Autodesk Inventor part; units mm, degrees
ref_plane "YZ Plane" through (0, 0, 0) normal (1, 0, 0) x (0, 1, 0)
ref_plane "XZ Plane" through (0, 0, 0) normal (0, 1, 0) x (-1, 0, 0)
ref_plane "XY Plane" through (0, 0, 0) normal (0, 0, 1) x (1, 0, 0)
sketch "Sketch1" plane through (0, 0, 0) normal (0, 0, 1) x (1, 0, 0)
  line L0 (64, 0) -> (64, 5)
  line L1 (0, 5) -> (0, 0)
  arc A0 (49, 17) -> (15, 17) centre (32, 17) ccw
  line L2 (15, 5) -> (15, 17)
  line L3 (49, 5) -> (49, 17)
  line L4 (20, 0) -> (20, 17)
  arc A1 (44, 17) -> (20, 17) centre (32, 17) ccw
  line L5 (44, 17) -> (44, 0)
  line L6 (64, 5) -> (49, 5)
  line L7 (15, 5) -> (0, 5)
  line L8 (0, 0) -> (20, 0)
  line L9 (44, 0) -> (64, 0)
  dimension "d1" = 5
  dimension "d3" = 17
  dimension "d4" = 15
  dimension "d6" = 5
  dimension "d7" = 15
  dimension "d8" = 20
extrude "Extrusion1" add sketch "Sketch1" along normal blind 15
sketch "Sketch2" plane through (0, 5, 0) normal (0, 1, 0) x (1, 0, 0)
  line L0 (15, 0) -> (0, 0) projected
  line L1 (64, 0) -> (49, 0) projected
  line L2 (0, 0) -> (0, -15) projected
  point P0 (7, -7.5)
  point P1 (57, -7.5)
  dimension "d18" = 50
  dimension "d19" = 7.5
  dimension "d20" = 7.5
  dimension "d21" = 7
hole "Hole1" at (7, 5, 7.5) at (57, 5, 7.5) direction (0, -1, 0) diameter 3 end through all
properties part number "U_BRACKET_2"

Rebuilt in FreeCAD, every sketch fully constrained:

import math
import FreeCAD as App
import Part
import Sketcher
from FreeCAD import Vector
Q = App.Units.Quantity

doc = App.newDocument("Part")
body = doc.addObject("PartDesign::Body", "Body")

sketch1 = body.newObject("Sketcher::SketchObject", "Sketch")
sketch1.AttachmentSupport = (doc.getObject("XY_Plane"), [""])
sketch1.MapMode = "FlatFace"
sketch1.addGeometry(Part.LineSegment(Vector(44, 0, 0), Vector(64, 0, 0)), False)
sketch1.addGeometry(Part.LineSegment(Vector(64, 0, 0), Vector(64, 5, 0)), False)
sketch1.addGeometry(Part.LineSegment(Vector(64, 5, 0), Vector(49, 5, 0)), False)
sketch1.addGeometry(Part.LineSegment(Vector(49, 5, 0), Vector(49, 17, 0)), False)
sketch1.addGeometry(Part.ArcOfCircle(Part.Circle(Vector(32, 17, 0), Vector(0, 0, 1), 17), math.radians(0), math.radians(180)), False)
sketch1.addGeometry(Part.LineSegment(Vector(15, 17, 0), Vector(15, 5, 0)), False)
sketch1.addGeometry(Part.LineSegment(Vector(15, 5, 0), Vector(0, 5, 0)), False)
sketch1.addGeometry(Part.LineSegment(Vector(0, 5, 0), Vector(0, 0, 0)), False)
sketch1.addGeometry(Part.LineSegment(Vector(0, 0, 0), Vector(20, 0, 0)), False)
sketch1.addGeometry(Part.LineSegment(Vector(20, 0, 0), Vector(20, 17, 0)), False)
sketch1.addGeometry(Part.ArcOfCircle(Part.Circle(Vector(32, 17, 0), Vector(0, 0, 1), 12), math.radians(0), math.radians(180)), False)
sketch1.addGeometry(Part.LineSegment(Vector(44, 17, 0), Vector(44, 0, 0)), False)
sketch1.addConstraint(Sketcher.Constraint("Coincident", 0, 2, 1, 1))
sketch1.addConstraint(Sketcher.Constraint("Coincident", 1, 2, 2, 1))
sketch1.addConstraint(Sketcher.Constraint("Coincident", 2, 2, 3, 1))
sketch1.addConstraint(Sketcher.Constraint("Tangent", 3, 2, 4, 1))
sketch1.addConstraint(Sketcher.Constraint("Tangent", 4, 2, 5, 1))
sketch1.addConstraint(Sketcher.Constraint("Coincident", 5, 2, 6, 1))
sketch1.addConstraint(Sketcher.Constraint("Coincident", 6, 2, 7, 1))
sketch1.addConstraint(Sketcher.Constraint("Coincident", 7, 2, 8, 1))
sketch1.addConstraint(Sketcher.Constraint("Coincident", 8, 2, 9, 1))
sketch1.addConstraint(Sketcher.Constraint("Tangent", 9, 2, 10, 2))
sketch1.addConstraint(Sketcher.Constraint("Tangent", 10, 1, 11, 1))
sketch1.addConstraint(Sketcher.Constraint("Coincident", 11, 2, 0, 1))
sketch1.addConstraint(Sketcher.Constraint("Horizontal", 0))
sketch1.addConstraint(Sketcher.Constraint("Vertical", 1))
sketch1.addConstraint(Sketcher.Constraint("Horizontal", 2))
sketch1.addConstraint(Sketcher.Constraint("Vertical", 3))
sketch1.addConstraint(Sketcher.Constraint("Vertical", 5))
sketch1.addConstraint(Sketcher.Constraint("Horizontal", 6))
sketch1.addConstraint(Sketcher.Constraint("Vertical", 7))
sketch1.addConstraint(Sketcher.Constraint("Horizontal", 8))
sketch1.addConstraint(Sketcher.Constraint("Vertical", 9))
sketch1.addConstraint(Sketcher.Constraint("Vertical", 11))
sketch1.addConstraint(Sketcher.Constraint("Coincident", 7, 2, -1, 1))
sketch1.addConstraint(Sketcher.Constraint("Coincident", 10, 3, 4, 3))
sketch1.addConstraint(Sketcher.Constraint("PointOnObject", 0, 2, -1))
sketch1.addConstraint(Sketcher.Constraint("Horizontal", 2, 2, 5, 2))
sketch1.addConstraint(Sketcher.Constraint("Equal", 2, 6))
sketch1.addConstraint(Sketcher.Constraint("Radius", 4, Q("17 mm")))
sketch1.addConstraint(Sketcher.Constraint("DistanceX", 0, 1, 0, 2, Q("20 mm")))
sketch1.addConstraint(Sketcher.Constraint("DistanceX", 2, 2, 2, 1, Q("15 mm")))
sketch1.addConstraint(Sketcher.Constraint("DistanceY", 1, 1, 1, 2, Q("5 mm")))
sketch1.addConstraint(Sketcher.Constraint("DistanceY", 9, 1, 9, 2, Q("17 mm")))
pad1 = body.newObject("PartDesign::Pad", "Pad")
pad1.Profile = sketch1
pad1.Length = 15

sketch2 = body.newObject("Sketcher::SketchObject", "Sketch001")
sketch2.AttachmentSupport = (doc.getObject("XZ_Plane"), [""])
sketch2.MapMode = "FlatFace"
sketch2.AttachmentOffset = App.Placement(Vector(0, 0, -5), App.Rotation())
sketch2.addGeometry(Part.Circle(Vector(7, 7.5, 0), Vector(0, 0, 1), 1.5), False)
sketch2.addGeometry(Part.Circle(Vector(57, 7.5, 0), Vector(0, 0, 1), 1.5), False)
sketch2.addConstraint(Sketcher.Constraint("Equal", 0, 1))
sketch2.addConstraint(Sketcher.Constraint("Horizontal", 0, 3, 1, 3))
sketch2.addConstraint(Sketcher.Constraint("Diameter", 0, Q("3 mm")))
sketch2.addConstraint(Sketcher.Constraint("DistanceX", -1, 1, 0, 3, Q("7 mm")))
sketch2.addConstraint(Sketcher.Constraint("DistanceX", -1, 1, 1, 3, Q("57 mm")))
sketch2.addConstraint(Sketcher.Constraint("DistanceY", -1, 1, 0, 3, Q("7.5 mm")))
doc.recompute()
hole = body.newObject("PartDesign::Hole", "Hole")
hole.Profile = sketch2
hole.ThreadType = "None"
hole.Diameter = 3
hole.DepthType = "ThroughAll"
hole.Reversed = True

doc.recompute()
